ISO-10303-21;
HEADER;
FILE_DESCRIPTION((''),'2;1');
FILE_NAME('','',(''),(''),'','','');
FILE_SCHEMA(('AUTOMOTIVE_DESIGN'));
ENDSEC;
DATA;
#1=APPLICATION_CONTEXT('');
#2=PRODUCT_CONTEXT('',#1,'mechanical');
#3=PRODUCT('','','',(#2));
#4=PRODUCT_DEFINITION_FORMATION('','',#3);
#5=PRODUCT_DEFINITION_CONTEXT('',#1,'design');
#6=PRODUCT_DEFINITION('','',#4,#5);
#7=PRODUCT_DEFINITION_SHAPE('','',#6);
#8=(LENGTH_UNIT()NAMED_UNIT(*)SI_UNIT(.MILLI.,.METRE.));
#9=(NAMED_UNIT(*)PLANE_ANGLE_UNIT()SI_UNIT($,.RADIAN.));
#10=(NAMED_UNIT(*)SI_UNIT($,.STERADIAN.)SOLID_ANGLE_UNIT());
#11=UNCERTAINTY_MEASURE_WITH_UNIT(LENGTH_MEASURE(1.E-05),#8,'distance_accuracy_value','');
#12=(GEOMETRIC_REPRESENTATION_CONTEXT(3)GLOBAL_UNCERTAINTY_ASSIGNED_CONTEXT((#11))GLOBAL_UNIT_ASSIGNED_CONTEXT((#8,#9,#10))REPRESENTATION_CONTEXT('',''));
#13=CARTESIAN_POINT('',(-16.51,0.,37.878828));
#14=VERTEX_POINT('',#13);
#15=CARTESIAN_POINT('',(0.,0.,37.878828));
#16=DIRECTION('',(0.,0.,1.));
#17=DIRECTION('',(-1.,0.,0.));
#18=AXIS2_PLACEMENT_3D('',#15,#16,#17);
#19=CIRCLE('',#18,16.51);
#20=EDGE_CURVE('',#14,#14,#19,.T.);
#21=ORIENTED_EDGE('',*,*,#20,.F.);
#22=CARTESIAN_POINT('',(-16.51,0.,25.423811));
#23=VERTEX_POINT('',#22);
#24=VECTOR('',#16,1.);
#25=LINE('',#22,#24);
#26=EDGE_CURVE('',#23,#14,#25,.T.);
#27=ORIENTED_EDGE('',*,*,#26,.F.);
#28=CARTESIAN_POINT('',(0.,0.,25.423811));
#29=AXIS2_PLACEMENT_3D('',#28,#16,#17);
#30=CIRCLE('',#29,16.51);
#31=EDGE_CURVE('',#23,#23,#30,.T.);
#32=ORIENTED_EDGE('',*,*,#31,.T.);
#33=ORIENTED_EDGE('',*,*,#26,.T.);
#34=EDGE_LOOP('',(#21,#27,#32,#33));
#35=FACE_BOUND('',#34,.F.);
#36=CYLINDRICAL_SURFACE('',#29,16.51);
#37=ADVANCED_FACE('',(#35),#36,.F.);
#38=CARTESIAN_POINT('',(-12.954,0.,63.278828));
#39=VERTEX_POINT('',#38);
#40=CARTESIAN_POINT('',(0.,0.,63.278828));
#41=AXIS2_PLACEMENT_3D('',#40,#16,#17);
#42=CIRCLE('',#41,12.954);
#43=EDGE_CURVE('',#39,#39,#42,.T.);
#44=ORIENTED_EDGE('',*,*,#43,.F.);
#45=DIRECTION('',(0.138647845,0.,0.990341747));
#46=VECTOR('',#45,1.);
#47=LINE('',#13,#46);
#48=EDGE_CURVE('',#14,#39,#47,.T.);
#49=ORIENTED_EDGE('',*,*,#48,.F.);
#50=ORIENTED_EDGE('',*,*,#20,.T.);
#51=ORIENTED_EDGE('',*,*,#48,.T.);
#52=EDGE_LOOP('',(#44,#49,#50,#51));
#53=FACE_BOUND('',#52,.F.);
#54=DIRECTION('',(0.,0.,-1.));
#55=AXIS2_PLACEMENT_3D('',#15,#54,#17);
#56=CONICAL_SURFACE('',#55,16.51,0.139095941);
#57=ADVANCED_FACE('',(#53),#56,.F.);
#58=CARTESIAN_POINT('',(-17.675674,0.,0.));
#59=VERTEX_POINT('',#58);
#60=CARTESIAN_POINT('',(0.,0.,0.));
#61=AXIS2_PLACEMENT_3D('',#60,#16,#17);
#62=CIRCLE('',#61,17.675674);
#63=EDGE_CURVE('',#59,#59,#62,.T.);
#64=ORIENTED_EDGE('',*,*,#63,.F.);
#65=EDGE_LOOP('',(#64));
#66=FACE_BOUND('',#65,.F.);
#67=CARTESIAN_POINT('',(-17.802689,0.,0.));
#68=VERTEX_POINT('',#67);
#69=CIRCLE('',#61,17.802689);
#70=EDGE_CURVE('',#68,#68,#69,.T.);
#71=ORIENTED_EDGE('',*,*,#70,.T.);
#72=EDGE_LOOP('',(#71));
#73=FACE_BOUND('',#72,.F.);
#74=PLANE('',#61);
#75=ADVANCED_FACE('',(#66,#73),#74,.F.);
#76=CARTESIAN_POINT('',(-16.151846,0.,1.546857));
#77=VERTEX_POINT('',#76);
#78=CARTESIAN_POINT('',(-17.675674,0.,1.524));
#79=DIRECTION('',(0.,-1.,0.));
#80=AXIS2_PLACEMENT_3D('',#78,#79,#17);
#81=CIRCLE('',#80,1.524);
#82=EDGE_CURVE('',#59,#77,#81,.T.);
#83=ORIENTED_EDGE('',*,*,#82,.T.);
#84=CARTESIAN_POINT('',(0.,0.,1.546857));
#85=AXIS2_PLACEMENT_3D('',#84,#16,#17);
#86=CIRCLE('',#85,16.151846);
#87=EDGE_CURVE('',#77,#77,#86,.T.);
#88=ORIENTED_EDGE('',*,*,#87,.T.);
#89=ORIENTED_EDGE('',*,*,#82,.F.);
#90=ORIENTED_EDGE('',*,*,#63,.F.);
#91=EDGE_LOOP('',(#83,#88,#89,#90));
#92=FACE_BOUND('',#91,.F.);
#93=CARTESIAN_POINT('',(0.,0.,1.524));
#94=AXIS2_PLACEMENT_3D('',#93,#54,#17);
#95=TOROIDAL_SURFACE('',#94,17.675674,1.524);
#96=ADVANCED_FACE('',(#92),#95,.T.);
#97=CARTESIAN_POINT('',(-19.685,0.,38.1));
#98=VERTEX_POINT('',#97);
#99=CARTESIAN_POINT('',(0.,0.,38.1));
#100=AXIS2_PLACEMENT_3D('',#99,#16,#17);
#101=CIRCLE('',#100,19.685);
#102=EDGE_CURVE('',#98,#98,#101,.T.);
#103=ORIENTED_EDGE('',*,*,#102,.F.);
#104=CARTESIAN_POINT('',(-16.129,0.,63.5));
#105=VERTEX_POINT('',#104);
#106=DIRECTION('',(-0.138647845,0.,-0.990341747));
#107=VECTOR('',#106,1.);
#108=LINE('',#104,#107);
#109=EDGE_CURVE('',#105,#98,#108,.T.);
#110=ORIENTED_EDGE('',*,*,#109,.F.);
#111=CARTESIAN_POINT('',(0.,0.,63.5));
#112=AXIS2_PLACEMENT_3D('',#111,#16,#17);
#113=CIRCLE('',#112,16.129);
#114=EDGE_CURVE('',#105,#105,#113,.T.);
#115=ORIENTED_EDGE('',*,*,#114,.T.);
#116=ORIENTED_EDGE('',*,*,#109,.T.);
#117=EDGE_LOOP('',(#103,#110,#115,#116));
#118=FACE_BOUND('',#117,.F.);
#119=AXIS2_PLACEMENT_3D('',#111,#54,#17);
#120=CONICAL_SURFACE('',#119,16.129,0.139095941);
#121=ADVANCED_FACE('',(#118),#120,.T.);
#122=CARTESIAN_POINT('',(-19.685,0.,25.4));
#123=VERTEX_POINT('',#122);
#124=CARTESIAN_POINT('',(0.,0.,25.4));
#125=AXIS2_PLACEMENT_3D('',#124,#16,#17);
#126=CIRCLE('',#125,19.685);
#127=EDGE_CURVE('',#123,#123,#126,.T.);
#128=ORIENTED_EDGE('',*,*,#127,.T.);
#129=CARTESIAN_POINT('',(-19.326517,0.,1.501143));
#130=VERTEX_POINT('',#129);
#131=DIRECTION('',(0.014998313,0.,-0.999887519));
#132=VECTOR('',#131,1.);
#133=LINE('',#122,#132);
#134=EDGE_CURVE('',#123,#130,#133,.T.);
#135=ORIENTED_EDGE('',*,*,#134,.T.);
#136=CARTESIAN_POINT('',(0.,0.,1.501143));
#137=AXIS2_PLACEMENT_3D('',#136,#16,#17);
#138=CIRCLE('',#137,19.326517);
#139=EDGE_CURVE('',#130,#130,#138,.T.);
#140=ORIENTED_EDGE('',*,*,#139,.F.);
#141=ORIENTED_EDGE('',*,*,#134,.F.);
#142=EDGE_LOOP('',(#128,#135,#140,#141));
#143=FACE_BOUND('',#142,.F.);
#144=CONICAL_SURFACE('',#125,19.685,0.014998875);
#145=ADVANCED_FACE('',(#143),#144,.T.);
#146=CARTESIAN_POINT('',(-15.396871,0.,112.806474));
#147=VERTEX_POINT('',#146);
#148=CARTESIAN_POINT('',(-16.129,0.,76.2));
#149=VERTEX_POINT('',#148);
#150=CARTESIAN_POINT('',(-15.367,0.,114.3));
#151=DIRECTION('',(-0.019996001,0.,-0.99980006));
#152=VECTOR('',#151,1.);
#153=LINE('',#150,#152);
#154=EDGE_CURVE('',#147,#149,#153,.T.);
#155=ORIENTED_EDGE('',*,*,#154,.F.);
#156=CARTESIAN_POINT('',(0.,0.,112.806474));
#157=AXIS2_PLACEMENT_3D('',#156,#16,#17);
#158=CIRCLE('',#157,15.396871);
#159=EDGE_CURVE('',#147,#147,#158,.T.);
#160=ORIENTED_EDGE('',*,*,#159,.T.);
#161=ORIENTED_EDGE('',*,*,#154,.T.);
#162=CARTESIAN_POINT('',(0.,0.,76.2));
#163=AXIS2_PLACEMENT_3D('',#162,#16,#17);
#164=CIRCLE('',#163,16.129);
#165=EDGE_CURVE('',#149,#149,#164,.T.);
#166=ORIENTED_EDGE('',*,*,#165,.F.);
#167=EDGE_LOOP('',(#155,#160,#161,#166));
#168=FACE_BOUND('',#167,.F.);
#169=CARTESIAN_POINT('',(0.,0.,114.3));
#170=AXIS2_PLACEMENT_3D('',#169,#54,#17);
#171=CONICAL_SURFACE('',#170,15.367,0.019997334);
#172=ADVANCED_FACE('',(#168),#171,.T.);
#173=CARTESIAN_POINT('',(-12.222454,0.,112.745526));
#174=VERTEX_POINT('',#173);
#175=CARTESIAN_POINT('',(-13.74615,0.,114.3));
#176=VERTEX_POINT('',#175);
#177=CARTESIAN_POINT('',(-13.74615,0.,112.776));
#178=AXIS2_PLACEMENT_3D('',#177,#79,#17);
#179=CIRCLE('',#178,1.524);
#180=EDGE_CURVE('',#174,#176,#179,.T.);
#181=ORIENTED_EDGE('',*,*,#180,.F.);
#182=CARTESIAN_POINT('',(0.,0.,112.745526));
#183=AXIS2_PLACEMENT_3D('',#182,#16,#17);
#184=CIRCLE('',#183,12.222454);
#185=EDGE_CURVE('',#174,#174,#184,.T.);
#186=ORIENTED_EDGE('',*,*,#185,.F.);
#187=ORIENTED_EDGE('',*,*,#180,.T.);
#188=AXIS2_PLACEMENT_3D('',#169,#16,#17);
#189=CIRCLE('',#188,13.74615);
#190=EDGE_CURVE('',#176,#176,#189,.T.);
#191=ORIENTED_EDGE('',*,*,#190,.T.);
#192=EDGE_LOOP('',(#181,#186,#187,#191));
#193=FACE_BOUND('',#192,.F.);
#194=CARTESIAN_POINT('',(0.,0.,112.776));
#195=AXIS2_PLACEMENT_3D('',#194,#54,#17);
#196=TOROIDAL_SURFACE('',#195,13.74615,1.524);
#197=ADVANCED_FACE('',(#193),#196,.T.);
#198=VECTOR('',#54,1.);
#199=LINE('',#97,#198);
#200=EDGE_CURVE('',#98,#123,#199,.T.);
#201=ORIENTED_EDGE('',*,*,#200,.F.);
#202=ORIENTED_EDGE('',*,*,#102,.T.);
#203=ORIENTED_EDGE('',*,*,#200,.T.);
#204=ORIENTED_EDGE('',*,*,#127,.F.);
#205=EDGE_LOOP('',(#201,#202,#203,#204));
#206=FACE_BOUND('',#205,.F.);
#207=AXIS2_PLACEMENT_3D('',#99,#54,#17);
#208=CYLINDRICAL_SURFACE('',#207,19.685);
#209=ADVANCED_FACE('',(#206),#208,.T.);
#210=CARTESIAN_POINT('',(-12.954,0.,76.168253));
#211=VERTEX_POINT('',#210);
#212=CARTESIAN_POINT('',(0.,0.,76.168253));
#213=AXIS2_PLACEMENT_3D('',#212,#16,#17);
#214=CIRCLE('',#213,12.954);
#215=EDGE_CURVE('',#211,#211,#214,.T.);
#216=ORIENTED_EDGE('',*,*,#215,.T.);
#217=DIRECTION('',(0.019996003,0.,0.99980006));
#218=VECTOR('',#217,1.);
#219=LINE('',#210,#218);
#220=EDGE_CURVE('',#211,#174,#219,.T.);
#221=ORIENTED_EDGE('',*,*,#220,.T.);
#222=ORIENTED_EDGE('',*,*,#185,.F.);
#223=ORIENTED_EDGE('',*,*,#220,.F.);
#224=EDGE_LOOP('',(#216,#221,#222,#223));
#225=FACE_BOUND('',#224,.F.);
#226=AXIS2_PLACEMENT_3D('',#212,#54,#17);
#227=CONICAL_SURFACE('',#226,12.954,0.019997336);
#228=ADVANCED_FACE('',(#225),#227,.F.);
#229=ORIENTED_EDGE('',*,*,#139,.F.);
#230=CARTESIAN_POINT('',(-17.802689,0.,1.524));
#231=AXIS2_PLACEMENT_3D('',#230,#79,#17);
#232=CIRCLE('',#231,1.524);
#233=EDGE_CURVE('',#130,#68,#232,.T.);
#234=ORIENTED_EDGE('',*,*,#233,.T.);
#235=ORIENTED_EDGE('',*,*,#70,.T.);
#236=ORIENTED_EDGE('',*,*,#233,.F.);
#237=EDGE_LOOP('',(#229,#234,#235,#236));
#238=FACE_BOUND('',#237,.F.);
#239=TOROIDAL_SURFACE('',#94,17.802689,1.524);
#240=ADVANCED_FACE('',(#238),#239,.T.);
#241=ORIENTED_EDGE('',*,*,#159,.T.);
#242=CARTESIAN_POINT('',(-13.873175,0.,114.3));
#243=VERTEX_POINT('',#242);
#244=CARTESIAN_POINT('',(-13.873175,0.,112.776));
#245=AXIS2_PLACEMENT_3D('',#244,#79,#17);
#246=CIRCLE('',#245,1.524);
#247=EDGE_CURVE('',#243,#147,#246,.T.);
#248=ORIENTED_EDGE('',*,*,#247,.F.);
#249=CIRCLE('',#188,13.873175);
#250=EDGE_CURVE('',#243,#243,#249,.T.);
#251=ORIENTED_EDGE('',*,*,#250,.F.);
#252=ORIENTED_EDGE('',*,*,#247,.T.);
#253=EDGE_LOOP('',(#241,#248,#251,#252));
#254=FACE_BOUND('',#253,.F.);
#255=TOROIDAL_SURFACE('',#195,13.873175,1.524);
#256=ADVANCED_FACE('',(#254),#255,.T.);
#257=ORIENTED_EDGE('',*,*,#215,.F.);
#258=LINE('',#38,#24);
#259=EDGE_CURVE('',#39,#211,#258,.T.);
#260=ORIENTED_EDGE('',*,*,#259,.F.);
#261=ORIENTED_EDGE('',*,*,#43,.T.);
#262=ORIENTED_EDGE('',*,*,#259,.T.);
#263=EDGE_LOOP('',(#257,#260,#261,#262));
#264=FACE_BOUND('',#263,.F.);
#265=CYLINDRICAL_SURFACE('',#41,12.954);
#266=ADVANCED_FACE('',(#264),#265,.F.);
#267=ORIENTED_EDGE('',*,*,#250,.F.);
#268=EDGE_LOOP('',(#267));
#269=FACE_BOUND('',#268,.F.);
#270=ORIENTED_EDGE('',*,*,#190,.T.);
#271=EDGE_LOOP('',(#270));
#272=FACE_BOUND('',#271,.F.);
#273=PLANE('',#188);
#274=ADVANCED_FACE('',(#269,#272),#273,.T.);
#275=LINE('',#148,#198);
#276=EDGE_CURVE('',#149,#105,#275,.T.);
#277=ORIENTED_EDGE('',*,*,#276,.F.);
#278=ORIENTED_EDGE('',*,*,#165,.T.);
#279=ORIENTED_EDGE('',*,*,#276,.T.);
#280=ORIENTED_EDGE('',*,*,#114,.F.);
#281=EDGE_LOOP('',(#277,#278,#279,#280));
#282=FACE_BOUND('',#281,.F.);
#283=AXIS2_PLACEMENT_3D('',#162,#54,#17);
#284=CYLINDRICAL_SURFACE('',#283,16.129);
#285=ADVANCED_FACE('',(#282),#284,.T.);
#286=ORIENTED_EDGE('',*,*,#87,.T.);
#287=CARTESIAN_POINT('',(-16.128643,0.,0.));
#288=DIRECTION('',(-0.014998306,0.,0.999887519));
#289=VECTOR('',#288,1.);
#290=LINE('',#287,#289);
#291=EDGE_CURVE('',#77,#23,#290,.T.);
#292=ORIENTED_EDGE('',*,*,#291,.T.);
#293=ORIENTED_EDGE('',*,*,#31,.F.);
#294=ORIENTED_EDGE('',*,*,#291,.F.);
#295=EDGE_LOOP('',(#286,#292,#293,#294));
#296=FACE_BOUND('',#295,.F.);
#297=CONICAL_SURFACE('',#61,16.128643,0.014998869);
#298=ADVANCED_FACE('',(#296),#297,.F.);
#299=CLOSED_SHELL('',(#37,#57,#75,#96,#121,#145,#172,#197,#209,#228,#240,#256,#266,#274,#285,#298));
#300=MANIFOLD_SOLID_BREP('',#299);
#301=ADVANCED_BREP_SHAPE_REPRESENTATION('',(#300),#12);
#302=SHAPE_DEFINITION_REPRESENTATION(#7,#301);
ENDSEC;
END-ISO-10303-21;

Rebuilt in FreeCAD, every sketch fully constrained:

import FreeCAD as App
import Part
import Sketcher
from FreeCAD import Vector
Q = App.Units.Quantity


def edges_at(feature, points):
    """Names of the edges that pass closest to the given points."""
    edges = feature.Shape.Edges
    near = lambda p: min(range(len(edges)), key=lambda i: edges[i].distToShape(Part.Vertex(*p))[0])
    return sorted({f"Edge{near(p) + 1}" for p in points})

doc = App.newDocument("Part")
params = doc.addObject("Spreadsheet::Sheet", "Params")
for row, (alias, value) in enumerate([
    ("sketch1_height", "0.5 in"),
    ("revolution_angle", "360 deg"),
    ("fillet_radius", "0.06 in"),
], start=1):
    params.set(f"A{row}", alias)
    params.set(f"B{row}", "=" + value)
    params.setAlias(f"B{row}", alias)

body = doc.addObject("PartDesign::Body", "Body")

# Sketch on XZ plane
sketch1 = body.newObject("Sketcher::SketchObject", "Sketch")
sketch1.AttachmentSupport = (doc.getObject("XZ_Plane"), [""])
sketch1.MapMode = "FlatFace"
sketch1.addGeometry(Part.LineSegment(Vector(-19.685, 25.4, 0), Vector(-19.304, 0, 0)), False)
sketch1.addGeometry(Part.LineSegment(Vector(-19.304, 0, 0), Vector(-16.128643, 0, 0)), False)
sketch1.addGeometry(Part.LineSegment(Vector(-16.128643, 0, 0), Vector(-16.51, 25.423811, 0)), False)
sketch1.addGeometry(Part.LineSegment(Vector(-16.51, 25.423811, 0), Vector(-16.51, 37.878828, 0)), False)
sketch1.addGeometry(Part.LineSegment(Vector(-16.51, 37.878828, 0), Vector(-12.954, 63.278828, 0)), False)
sketch1.addGeometry(Part.LineSegment(Vector(-12.954, 63.278828, 0), Vector(-12.954, 76.168253, 0)), False)
sketch1.addGeometry(Part.LineSegment(Vector(-12.954, 76.168253, 0), Vector(-12.191365, 114.3, 0)), False)
sketch1.addGeometry(Part.LineSegment(Vector(-12.191365, 114.3, 0), Vector(-15.367, 114.3, 0)), False)
sketch1.addGeometry(Part.LineSegment(Vector(-15.367, 114.3, 0), Vector(-16.129, 76.2, 0)), False)
sketch1.addGeometry(Part.LineSegment(Vector(-16.129, 76.2, 0), Vector(-16.129, 63.5, 0)), False)
sketch1.addGeometry(Part.LineSegment(Vector(-16.129, 63.5, 0), Vector(-19.685, 38.1, 0)), False)
sketch1.addGeometry(Part.LineSegment(Vector(-19.685, 38.1, 0), Vector(-19.685, 25.4, 0)), False)
sketch1.addConstraint(Sketcher.Constraint("Coincident", 0, 2, 1, 1))
sketch1.addConstraint(Sketcher.Constraint("Coincident", 1, 2, 2, 1))
sketch1.addConstraint(Sketcher.Constraint("Coincident", 2, 2, 3, 1))
sketch1.addConstraint(Sketcher.Constraint("Coincident", 3, 2, 4, 1))
sketch1.addConstraint(Sketcher.Constraint("Coincident", 4, 2, 5, 1))
sketch1.addConstraint(Sketcher.Constraint("Coincident", 5, 2, 6, 1))
sketch1.addConstraint(Sketcher.Constraint("Coincident", 6, 2, 7, 1))
sketch1.addConstraint(Sketcher.Constraint("Coincident", 7, 2, 8, 1))
sketch1.addConstraint(Sketcher.Constraint("Coincident", 8, 2, 9, 1))
sketch1.addConstraint(Sketcher.Constraint("Coincident", 9, 2, 10, 1))
sketch1.addConstraint(Sketcher.Constraint("Coincident", 10, 2, 11, 1))
sketch1.addConstraint(Sketcher.Constraint("Coincident", 11, 2, 0, 1))
sketch1.addConstraint(Sketcher.Constraint("Horizontal", 1))
sketch1.addConstraint(Sketcher.Constraint("Vertical", 3))
sketch1.addConstraint(Sketcher.Constraint("Vertical", 5))
sketch1.addConstraint(Sketcher.Constraint("Horizontal", 7))
sketch1.addConstraint(Sketcher.Constraint("Vertical", 9))
sketch1.addConstraint(Sketcher.Constraint("Vertical", 11))
sketch1.addConstraint(Sketcher.Constraint("PointOnObject", 0, 2, -1))
sketch1.addConstraint(Sketcher.Constraint("Parallel", 0, 2))
sketch1.addConstraint(Sketcher.Constraint("Parallel", 6, 8))
sketch1.addConstraint(Sketcher.Constraint("Parallel", 4, 10))
sketch1.addConstraint(Sketcher.Constraint("Equal", 9, 11))
sketch1.addConstraint(Sketcher.Constraint("Equal", 4, 10))
sketch1.addConstraint(Sketcher.Constraint("DistanceY", 9, 2, 9, 1, Q("0.5 in")))
sketch1.addConstraint(Sketcher.Constraint("DistanceY", -1, 1, 8, 2, Q("3 in")))
sketch1.addConstraint(Sketcher.Constraint("DistanceY", -1, 1, 11, 2, Q("1 in")))
sketch1.addConstraint(Sketcher.Constraint("DistanceY", -1, 1, 6, 2, Q("4.5 in")))
sketch1.addConstraint(Sketcher.Constraint("DistanceX", 0, 2, -1, 1, Q("0.76 in")))
sketch1.addConstraint(Sketcher.Constraint("DistanceX", 2, 2, -1, 1, Q("0.65 in")))
sketch1.addConstraint(Sketcher.Constraint("DistanceX", 4, 2, -1, 1, Q("0.51 in")))
sketch1.addConstraint(Sketcher.Constraint("DistanceX", 8, 2, 7, 2, Q("0.03 in")))
sketch1.addConstraint(Sketcher.Constraint("DistanceX", 7, 2, -1, 1, Q("0.605 in")))
sketch1.addConstraint(Sketcher.Constraint("Distance", 2, Q("25.426671 mm")))
sketch1.addConstraint(Sketcher.Constraint("DistanceX", 7, 2, 7, 1, Q("3.175635 mm")))
sketch1.addConstraint(Sketcher.Constraint("DistanceY", 3, 1, 3, 2, Q("12.455017 mm")))
sketch1.setExpression("Constraints[24]", "Params.sketch1_height")
revolution = body.newObject("PartDesign::Revolution", "Revolution")
revolution.Profile = sketch1
revolution.ReferenceAxis = (sketch1, ["V_Axis"])
revolution.setExpression("Angle", "Params.revolution_angle")
doc.recompute()

fillet = body.newObject("PartDesign::Fillet", "Fillet")
fillet.Base = (revolution, edges_at(revolution, [
    (15.367, 0, 114.3),
    (12.191, 0, 114.3),
    (19.304, 0, 0),
    (16.129, 0, 0),
]))
fillet.setExpression("Radius", "Params.fillet_radius")

doc.recompute()
